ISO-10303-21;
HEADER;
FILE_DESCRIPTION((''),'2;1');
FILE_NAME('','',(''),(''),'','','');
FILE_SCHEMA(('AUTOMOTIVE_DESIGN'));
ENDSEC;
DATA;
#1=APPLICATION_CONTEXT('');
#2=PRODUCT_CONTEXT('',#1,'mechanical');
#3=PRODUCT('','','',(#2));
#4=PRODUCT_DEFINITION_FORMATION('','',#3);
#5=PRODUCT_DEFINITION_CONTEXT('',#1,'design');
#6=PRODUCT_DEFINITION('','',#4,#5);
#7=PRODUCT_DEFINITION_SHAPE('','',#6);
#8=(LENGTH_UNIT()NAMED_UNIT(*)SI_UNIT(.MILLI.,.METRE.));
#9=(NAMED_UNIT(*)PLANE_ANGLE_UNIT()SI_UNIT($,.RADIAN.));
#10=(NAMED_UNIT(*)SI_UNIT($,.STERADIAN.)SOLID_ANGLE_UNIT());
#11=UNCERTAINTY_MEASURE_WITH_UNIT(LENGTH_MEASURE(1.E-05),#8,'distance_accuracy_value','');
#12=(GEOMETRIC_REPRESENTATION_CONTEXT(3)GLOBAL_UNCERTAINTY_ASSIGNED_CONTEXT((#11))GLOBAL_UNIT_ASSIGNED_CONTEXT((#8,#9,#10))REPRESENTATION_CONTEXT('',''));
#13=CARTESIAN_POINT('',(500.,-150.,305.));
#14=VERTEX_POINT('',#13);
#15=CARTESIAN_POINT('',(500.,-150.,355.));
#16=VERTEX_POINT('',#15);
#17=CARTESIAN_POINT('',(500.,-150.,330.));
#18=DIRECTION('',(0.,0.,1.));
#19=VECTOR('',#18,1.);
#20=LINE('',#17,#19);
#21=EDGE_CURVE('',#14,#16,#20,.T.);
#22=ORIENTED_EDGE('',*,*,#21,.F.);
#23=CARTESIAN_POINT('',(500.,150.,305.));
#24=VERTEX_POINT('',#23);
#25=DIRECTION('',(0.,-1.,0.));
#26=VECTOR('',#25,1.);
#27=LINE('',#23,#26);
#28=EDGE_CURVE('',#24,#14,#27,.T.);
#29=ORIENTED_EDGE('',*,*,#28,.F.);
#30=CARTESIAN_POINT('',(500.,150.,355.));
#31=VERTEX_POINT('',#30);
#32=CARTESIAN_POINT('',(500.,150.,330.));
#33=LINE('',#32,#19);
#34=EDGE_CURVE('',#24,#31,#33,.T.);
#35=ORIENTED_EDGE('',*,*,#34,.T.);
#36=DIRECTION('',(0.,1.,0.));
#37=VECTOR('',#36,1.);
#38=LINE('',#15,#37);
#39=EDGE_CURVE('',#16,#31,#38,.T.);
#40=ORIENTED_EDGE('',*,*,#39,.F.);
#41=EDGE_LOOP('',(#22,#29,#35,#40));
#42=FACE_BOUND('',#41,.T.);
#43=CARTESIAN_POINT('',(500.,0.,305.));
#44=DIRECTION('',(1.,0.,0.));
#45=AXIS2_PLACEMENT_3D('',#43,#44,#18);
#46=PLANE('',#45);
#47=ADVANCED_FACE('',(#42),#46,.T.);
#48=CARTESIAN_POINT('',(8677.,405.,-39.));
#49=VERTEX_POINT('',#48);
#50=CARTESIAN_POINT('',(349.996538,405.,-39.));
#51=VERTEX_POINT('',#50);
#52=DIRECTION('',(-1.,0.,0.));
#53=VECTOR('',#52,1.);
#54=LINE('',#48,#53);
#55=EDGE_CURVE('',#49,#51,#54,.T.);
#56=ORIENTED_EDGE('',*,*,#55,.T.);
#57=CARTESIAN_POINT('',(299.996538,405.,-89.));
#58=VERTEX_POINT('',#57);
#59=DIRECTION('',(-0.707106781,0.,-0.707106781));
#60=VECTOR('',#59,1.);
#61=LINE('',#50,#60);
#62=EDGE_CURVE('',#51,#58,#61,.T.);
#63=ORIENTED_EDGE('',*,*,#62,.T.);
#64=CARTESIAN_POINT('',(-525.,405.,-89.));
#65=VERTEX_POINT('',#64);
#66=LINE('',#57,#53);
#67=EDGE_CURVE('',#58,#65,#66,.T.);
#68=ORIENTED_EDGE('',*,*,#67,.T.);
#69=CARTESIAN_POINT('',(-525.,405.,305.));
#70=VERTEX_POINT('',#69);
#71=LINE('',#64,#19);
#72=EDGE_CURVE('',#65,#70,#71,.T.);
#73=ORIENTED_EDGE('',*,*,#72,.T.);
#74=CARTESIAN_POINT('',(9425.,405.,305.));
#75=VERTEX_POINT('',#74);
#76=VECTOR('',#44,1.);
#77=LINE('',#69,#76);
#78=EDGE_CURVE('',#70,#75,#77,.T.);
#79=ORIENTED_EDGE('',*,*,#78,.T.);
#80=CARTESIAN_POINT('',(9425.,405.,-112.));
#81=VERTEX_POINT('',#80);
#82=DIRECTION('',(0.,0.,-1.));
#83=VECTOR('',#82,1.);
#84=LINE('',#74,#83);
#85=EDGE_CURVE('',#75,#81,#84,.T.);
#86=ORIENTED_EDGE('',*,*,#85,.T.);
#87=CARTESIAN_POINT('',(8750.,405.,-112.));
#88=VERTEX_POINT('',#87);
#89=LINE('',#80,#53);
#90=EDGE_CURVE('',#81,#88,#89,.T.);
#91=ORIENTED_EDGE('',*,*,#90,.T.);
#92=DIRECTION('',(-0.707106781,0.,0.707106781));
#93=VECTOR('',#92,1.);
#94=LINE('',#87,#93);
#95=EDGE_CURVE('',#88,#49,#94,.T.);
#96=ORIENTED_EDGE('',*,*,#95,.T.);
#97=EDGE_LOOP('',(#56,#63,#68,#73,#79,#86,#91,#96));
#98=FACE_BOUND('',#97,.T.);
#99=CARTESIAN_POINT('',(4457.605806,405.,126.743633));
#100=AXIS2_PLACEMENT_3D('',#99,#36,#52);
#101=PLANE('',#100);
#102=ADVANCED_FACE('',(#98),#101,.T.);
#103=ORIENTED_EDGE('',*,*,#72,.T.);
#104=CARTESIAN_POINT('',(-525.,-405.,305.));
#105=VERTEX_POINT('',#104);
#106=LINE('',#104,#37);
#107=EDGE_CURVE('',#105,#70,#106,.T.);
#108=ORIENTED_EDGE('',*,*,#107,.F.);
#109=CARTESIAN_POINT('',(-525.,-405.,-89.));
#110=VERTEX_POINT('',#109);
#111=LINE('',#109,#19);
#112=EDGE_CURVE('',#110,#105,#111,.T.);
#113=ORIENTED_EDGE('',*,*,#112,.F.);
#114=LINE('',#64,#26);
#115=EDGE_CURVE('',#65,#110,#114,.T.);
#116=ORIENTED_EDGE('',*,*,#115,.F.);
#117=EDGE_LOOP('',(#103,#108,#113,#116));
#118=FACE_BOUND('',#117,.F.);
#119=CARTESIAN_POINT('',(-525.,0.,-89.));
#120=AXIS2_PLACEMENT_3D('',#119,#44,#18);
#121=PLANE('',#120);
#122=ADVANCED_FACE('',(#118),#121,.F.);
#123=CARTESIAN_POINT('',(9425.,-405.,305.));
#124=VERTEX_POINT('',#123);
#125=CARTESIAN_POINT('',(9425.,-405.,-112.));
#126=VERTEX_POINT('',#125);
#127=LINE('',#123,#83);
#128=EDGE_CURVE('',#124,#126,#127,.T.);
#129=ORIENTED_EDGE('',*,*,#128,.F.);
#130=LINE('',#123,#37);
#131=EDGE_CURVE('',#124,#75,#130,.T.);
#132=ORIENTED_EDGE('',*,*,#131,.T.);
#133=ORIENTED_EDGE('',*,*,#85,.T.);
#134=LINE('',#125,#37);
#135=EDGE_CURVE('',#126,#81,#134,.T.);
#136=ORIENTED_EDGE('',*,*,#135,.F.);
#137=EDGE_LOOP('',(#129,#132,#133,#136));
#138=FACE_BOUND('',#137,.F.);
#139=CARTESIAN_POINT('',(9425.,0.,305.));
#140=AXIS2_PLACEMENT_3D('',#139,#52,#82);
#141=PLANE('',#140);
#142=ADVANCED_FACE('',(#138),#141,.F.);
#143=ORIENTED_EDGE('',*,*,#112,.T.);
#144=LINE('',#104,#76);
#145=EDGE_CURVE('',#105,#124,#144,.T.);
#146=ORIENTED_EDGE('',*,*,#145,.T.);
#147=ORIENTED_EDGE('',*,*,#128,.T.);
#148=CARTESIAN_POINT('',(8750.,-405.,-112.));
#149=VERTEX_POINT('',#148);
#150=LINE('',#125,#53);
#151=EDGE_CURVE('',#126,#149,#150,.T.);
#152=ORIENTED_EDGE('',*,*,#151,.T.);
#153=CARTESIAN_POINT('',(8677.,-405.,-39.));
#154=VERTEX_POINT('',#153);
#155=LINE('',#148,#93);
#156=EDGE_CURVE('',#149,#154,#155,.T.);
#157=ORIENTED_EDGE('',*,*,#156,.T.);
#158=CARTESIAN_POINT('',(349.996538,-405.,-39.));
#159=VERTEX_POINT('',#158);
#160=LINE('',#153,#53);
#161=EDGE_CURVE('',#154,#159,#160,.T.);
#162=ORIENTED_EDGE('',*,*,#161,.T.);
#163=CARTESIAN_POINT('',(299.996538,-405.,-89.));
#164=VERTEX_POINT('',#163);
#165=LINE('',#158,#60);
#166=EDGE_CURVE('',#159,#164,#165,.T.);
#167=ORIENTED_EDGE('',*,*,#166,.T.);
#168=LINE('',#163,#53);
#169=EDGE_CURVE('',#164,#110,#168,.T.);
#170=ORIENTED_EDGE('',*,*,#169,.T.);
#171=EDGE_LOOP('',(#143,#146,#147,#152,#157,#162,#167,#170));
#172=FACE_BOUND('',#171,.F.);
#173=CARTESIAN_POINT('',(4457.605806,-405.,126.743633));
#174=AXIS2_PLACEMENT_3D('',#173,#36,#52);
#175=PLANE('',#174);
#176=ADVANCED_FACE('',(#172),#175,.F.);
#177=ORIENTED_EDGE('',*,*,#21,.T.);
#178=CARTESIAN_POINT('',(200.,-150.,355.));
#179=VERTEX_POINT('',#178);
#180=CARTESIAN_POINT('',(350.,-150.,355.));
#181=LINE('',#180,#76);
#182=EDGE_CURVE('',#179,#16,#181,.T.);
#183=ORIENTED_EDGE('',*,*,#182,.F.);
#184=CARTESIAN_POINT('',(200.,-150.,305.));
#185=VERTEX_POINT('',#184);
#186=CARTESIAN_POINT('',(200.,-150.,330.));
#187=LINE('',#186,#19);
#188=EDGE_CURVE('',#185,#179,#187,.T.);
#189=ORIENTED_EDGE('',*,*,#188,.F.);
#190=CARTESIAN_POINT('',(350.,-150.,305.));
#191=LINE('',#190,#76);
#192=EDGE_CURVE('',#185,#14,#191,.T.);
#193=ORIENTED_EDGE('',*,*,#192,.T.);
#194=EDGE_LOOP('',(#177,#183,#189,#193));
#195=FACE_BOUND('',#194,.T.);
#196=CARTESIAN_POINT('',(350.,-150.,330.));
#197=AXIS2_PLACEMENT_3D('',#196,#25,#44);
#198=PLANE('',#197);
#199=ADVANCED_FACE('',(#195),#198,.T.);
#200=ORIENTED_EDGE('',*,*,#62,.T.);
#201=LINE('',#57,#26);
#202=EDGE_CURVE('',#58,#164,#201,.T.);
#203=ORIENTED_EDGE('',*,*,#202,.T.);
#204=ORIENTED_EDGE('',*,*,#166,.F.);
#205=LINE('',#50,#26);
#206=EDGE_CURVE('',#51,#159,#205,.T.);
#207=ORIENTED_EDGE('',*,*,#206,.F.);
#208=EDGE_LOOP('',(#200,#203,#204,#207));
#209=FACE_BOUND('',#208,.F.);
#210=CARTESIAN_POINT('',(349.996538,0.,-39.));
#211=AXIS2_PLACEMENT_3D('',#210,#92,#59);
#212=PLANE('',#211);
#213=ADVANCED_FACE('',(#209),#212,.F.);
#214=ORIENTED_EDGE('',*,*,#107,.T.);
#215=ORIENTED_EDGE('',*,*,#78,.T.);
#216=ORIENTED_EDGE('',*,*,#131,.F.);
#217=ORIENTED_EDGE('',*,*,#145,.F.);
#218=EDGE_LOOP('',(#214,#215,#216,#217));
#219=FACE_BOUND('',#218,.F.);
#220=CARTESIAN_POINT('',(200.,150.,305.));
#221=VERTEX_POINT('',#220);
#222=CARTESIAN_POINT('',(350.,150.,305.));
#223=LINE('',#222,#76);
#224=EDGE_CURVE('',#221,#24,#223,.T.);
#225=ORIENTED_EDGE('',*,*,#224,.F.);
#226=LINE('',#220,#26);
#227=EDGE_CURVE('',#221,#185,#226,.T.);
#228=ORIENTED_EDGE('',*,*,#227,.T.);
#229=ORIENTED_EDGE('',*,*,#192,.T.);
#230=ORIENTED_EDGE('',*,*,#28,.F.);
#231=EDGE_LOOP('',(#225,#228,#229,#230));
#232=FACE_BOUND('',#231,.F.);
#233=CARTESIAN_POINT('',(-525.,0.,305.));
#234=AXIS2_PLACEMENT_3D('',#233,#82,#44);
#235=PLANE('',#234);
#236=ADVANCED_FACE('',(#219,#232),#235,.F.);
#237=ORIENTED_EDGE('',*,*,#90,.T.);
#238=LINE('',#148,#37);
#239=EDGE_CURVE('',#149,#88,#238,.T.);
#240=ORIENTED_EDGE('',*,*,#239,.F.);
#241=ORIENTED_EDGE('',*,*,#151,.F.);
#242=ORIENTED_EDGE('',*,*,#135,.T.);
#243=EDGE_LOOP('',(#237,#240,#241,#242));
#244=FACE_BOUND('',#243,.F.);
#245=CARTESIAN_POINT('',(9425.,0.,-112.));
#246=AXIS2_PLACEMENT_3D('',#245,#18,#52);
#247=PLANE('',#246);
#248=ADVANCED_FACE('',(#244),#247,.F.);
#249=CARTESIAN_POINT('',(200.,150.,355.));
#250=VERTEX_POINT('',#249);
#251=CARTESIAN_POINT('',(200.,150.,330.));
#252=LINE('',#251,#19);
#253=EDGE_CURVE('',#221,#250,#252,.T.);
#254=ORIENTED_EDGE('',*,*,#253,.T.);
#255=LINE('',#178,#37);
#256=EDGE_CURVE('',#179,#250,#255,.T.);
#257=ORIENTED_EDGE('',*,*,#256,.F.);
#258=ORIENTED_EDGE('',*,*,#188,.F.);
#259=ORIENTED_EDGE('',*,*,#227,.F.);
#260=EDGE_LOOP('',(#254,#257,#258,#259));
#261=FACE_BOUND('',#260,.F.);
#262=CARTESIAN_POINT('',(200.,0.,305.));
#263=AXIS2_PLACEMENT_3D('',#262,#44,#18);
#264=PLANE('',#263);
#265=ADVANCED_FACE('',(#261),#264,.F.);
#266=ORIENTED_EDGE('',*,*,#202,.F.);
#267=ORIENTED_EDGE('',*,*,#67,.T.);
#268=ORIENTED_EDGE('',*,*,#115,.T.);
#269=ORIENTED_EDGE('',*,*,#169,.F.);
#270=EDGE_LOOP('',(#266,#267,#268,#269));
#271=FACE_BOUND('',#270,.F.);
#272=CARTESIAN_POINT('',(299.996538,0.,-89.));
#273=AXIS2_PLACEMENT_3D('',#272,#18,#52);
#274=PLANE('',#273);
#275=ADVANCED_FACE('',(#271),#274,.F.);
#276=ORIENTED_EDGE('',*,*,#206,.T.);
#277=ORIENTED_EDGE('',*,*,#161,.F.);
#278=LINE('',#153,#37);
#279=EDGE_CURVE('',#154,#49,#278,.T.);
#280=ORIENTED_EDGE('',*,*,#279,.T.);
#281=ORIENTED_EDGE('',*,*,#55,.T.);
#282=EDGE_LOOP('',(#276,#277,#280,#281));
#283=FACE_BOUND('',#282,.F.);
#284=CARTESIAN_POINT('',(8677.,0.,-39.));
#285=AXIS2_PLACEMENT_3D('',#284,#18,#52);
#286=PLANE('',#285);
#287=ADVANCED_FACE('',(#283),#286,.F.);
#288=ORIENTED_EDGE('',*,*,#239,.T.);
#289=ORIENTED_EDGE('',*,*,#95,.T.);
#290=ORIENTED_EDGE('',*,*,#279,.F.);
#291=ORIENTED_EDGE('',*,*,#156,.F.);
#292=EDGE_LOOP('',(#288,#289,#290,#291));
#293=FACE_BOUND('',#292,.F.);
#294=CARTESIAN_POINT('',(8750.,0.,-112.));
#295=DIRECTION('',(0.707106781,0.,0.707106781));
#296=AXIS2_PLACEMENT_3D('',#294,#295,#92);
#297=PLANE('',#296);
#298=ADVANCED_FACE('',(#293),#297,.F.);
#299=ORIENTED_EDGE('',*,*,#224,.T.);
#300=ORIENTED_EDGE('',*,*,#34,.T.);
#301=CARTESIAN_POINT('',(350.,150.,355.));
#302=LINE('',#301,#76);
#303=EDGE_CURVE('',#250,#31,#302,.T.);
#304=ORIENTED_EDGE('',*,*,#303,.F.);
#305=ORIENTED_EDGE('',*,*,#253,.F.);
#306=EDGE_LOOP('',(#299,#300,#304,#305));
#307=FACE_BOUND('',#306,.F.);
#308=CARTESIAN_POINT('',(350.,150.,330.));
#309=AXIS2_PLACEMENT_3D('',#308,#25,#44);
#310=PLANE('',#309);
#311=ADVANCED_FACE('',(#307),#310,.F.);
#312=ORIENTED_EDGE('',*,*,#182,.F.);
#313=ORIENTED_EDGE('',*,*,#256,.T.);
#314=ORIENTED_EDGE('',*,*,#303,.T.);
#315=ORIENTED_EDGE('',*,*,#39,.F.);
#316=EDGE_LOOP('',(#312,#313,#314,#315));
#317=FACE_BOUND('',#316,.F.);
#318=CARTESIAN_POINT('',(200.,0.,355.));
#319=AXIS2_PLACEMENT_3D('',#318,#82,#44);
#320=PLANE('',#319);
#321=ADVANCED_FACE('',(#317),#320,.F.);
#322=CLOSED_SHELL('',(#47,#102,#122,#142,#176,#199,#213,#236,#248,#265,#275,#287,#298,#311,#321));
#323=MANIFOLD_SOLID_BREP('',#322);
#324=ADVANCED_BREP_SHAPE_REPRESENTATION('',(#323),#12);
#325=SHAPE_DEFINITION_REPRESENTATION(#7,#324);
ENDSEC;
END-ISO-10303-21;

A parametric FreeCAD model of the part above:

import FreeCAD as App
import Part
import Sketcher

V = App.Vector
Q = App.Units.Quantity

doc = App.newDocument("Part")
params = doc.addObject("Spreadsheet::Sheet", "Params")
for row, (alias, value) in enumerate([
    ("sketch1_width", "300 mm"),
    ("sketch1_height", "50 mm"),
    ("pad1_length", "300 mm"),
    ("sketch2_width", "675 mm"),
    ("sketch2_width2", "9950 mm"),
    ("sketch2_height", "394 mm"),
    ("sketch2_height2", "417 mm"),
    ("pad2_length", "810 mm"),
], start=1):
    params.set(f"A{row}", alias)
    params.set(f"B{row}", "=" + value)
    params.setAlias(f"B{row}", alias)

body = doc.addObject("PartDesign::Body", "Body")

# Sketch on XZ plane
sketch1 = body.newObject("Sketcher::SketchObject", "Sketch")
sketch1.AttachmentSupport = (doc.getObject("XZ_Plane"), [""])
sketch1.MapMode = "FlatFace"
sketch1.addGeometry(Part.LineSegment(V(200, 355, 0), V(200, 305, 0)), False)
sketch1.addGeometry(Part.LineSegment(V(200, 305, 0), V(500, 305, 0)), False)
sketch1.addGeometry(Part.LineSegment(V(500, 305, 0), V(500, 355, 0)), False)
sketch1.addGeometry(Part.LineSegment(V(500, 355, 0), V(200, 355, 0)), False)
sketch1.addConstraint(Sketcher.Constraint("Coincident", 0, 2, 1, 1))
sketch1.addConstraint(Sketcher.Constraint("Coincident", 1, 2, 2, 1))
sketch1.addConstraint(Sketcher.Constraint("Coincident", 2, 2, 3, 1))
sketch1.addConstraint(Sketcher.Constraint("Coincident", 3, 2, 0, 1))
sketch1.addConstraint(Sketcher.Constraint("Vertical", 0))
sketch1.addConstraint(Sketcher.Constraint("Horizontal", 1))
sketch1.addConstraint(Sketcher.Constraint("Vertical", 2))
sketch1.addConstraint(Sketcher.Constraint("Horizontal", 3))
sketch1.addConstraint(Sketcher.Constraint("DistanceX", 1, 1, 1, 2, 300.0))
sketch1.addConstraint(Sketcher.Constraint("DistanceY", 0, 2, 0, 1, 50.0))
sketch1.addConstraint(Sketcher.Constraint("DistanceX", -1, 1, 0, 2, 200.0))
sketch1.addConstraint(Sketcher.Constraint("DistanceY", -1, 1, 0, 2, 305.0))
sketch1.setExpression("Constraints[8]", "Params.sketch1_width")
sketch1.setExpression("Constraints[9]", "Params.sketch1_height")
pad1 = body.newObject("PartDesign::Pad", "Pad")
pad1.Profile = sketch1
pad1.setExpression("Length", "Params.pad1_length")
pad1.Midplane = True
body2 = doc.addObject("PartDesign::Body", "Body001")

# Sketch on XZ plane
sketch2 = body2.newObject("Sketcher::SketchObject", "Sketch001")
sketch2.AttachmentSupport = (doc.getObject("XZ_Plane001"), [""])
sketch2.MapMode = "FlatFace"
sketch2.addGeometry(Part.LineSegment(V(-525, 305, 0), V(-525, -89, 0)), False)
sketch2.addGeometry(Part.LineSegment(V(-525, -89, 0), V(300, -89, 0)), False)
sketch2.addGeometry(Part.LineSegment(V(300, -89, 0), V(350, -39, 0)), False)
sketch2.addGeometry(Part.LineSegment(V(350, -39, 0), V(8677, -39, 0)), False)
sketch2.addGeometry(Part.LineSegment(V(8677, -39, 0), V(8750, -112, 0)), False)
sketch2.addGeometry(Part.LineSegment(V(8750, -112, 0), V(9425, -112, 0)), False)
sketch2.addGeometry(Part.LineSegment(V(9425, -112, 0), V(9425, 305, 0)), False)
sketch2.addGeometry(Part.LineSegment(V(9425, 305, 0), V(-525, 305, 0)), False)
sketch2.addConstraint(Sketcher.Constraint("Coincident", 0, 2, 1, 1))
sketch2.addConstraint(Sketcher.Constraint("Coincident", 1, 2, 2, 1))
sketch2.addConstraint(Sketcher.Constraint("Coincident", 2, 2, 3, 1))
sketch2.addConstraint(Sketcher.Constraint("Coincident", 3, 2, 4, 1))
sketch2.addConstraint(Sketcher.Constraint("Coincident", 4, 2, 5, 1))
sketch2.addConstraint(Sketcher.Constraint("Coincident", 5, 2, 6, 1))
sketch2.addConstraint(Sketcher.Constraint("Coincident", 6, 2, 7, 1))
sketch2.addConstraint(Sketcher.Constraint("Coincident", 7, 2, 0, 1))
sketch2.addConstraint(Sketcher.Constraint("Vertical", 0))
sketch2.addConstraint(Sketcher.Constraint("Horizontal", 1))
sketch2.addConstraint(Sketcher.Constraint("Horizontal", 3))
sketch2.addConstraint(Sketcher.Constraint("Horizontal", 5))
sketch2.addConstraint(Sketcher.Constraint("Vertical", 6))
sketch2.addConstraint(Sketcher.Constraint("Horizontal", 7))
sketch2.addConstraint(Sketcher.Constraint("Perpendicular", 2, 4))
sketch2.addConstraint(Sketcher.Constraint("DistanceX", 5, 1, 5, 2, 675.0))
sketch2.addConstraint(Sketcher.Constraint("DistanceX", 7, 2, 7, 1, 9950.0))
sketch2.addConstraint(Sketcher.Constraint("DistanceY", 0, 2, 0, 1, 394.0))
sketch2.addConstraint(Sketcher.Constraint("DistanceY", 6, 1, 6, 2, 417.0))
sketch2.addConstraint(Sketcher.Constraint("Angle", 2, Q("45 deg")))
sketch2.addConstraint(Sketcher.Constraint("DistanceX", 0, 2, -1, 1, 525.0))
sketch2.addConstraint(Sketcher.Constraint("DistanceY", 0, 2, -1, 1, 89.0))
sketch2.addConstraint(Sketcher.Constraint("DistanceY", 2, 2, -1, 1, 39.0))
sketch2.addConstraint(Sketcher.Constraint("DistanceX", 1, 1, 1, 2, 824.996538))
sketch2.setExpression("Constraints[15]", "Params.sketch2_width")
sketch2.setExpression("Constraints[16]", "Params.sketch2_width2")
sketch2.setExpression("Constraints[17]", "Params.sketch2_height")
sketch2.setExpression("Constraints[18]", "Params.sketch2_height2")
pad2 = body2.newObject("PartDesign::Pad", "Pad001")
pad2.Profile = sketch2
pad2.setExpression("Length", "Params.pad2_length")
pad2.Midplane = True
doc.recompute()

boolean = body2.newObject("PartDesign::Boolean", "Boolean")
boolean.Type = "Fuse"
boolean.addObjects([body])

doc.recompute()
